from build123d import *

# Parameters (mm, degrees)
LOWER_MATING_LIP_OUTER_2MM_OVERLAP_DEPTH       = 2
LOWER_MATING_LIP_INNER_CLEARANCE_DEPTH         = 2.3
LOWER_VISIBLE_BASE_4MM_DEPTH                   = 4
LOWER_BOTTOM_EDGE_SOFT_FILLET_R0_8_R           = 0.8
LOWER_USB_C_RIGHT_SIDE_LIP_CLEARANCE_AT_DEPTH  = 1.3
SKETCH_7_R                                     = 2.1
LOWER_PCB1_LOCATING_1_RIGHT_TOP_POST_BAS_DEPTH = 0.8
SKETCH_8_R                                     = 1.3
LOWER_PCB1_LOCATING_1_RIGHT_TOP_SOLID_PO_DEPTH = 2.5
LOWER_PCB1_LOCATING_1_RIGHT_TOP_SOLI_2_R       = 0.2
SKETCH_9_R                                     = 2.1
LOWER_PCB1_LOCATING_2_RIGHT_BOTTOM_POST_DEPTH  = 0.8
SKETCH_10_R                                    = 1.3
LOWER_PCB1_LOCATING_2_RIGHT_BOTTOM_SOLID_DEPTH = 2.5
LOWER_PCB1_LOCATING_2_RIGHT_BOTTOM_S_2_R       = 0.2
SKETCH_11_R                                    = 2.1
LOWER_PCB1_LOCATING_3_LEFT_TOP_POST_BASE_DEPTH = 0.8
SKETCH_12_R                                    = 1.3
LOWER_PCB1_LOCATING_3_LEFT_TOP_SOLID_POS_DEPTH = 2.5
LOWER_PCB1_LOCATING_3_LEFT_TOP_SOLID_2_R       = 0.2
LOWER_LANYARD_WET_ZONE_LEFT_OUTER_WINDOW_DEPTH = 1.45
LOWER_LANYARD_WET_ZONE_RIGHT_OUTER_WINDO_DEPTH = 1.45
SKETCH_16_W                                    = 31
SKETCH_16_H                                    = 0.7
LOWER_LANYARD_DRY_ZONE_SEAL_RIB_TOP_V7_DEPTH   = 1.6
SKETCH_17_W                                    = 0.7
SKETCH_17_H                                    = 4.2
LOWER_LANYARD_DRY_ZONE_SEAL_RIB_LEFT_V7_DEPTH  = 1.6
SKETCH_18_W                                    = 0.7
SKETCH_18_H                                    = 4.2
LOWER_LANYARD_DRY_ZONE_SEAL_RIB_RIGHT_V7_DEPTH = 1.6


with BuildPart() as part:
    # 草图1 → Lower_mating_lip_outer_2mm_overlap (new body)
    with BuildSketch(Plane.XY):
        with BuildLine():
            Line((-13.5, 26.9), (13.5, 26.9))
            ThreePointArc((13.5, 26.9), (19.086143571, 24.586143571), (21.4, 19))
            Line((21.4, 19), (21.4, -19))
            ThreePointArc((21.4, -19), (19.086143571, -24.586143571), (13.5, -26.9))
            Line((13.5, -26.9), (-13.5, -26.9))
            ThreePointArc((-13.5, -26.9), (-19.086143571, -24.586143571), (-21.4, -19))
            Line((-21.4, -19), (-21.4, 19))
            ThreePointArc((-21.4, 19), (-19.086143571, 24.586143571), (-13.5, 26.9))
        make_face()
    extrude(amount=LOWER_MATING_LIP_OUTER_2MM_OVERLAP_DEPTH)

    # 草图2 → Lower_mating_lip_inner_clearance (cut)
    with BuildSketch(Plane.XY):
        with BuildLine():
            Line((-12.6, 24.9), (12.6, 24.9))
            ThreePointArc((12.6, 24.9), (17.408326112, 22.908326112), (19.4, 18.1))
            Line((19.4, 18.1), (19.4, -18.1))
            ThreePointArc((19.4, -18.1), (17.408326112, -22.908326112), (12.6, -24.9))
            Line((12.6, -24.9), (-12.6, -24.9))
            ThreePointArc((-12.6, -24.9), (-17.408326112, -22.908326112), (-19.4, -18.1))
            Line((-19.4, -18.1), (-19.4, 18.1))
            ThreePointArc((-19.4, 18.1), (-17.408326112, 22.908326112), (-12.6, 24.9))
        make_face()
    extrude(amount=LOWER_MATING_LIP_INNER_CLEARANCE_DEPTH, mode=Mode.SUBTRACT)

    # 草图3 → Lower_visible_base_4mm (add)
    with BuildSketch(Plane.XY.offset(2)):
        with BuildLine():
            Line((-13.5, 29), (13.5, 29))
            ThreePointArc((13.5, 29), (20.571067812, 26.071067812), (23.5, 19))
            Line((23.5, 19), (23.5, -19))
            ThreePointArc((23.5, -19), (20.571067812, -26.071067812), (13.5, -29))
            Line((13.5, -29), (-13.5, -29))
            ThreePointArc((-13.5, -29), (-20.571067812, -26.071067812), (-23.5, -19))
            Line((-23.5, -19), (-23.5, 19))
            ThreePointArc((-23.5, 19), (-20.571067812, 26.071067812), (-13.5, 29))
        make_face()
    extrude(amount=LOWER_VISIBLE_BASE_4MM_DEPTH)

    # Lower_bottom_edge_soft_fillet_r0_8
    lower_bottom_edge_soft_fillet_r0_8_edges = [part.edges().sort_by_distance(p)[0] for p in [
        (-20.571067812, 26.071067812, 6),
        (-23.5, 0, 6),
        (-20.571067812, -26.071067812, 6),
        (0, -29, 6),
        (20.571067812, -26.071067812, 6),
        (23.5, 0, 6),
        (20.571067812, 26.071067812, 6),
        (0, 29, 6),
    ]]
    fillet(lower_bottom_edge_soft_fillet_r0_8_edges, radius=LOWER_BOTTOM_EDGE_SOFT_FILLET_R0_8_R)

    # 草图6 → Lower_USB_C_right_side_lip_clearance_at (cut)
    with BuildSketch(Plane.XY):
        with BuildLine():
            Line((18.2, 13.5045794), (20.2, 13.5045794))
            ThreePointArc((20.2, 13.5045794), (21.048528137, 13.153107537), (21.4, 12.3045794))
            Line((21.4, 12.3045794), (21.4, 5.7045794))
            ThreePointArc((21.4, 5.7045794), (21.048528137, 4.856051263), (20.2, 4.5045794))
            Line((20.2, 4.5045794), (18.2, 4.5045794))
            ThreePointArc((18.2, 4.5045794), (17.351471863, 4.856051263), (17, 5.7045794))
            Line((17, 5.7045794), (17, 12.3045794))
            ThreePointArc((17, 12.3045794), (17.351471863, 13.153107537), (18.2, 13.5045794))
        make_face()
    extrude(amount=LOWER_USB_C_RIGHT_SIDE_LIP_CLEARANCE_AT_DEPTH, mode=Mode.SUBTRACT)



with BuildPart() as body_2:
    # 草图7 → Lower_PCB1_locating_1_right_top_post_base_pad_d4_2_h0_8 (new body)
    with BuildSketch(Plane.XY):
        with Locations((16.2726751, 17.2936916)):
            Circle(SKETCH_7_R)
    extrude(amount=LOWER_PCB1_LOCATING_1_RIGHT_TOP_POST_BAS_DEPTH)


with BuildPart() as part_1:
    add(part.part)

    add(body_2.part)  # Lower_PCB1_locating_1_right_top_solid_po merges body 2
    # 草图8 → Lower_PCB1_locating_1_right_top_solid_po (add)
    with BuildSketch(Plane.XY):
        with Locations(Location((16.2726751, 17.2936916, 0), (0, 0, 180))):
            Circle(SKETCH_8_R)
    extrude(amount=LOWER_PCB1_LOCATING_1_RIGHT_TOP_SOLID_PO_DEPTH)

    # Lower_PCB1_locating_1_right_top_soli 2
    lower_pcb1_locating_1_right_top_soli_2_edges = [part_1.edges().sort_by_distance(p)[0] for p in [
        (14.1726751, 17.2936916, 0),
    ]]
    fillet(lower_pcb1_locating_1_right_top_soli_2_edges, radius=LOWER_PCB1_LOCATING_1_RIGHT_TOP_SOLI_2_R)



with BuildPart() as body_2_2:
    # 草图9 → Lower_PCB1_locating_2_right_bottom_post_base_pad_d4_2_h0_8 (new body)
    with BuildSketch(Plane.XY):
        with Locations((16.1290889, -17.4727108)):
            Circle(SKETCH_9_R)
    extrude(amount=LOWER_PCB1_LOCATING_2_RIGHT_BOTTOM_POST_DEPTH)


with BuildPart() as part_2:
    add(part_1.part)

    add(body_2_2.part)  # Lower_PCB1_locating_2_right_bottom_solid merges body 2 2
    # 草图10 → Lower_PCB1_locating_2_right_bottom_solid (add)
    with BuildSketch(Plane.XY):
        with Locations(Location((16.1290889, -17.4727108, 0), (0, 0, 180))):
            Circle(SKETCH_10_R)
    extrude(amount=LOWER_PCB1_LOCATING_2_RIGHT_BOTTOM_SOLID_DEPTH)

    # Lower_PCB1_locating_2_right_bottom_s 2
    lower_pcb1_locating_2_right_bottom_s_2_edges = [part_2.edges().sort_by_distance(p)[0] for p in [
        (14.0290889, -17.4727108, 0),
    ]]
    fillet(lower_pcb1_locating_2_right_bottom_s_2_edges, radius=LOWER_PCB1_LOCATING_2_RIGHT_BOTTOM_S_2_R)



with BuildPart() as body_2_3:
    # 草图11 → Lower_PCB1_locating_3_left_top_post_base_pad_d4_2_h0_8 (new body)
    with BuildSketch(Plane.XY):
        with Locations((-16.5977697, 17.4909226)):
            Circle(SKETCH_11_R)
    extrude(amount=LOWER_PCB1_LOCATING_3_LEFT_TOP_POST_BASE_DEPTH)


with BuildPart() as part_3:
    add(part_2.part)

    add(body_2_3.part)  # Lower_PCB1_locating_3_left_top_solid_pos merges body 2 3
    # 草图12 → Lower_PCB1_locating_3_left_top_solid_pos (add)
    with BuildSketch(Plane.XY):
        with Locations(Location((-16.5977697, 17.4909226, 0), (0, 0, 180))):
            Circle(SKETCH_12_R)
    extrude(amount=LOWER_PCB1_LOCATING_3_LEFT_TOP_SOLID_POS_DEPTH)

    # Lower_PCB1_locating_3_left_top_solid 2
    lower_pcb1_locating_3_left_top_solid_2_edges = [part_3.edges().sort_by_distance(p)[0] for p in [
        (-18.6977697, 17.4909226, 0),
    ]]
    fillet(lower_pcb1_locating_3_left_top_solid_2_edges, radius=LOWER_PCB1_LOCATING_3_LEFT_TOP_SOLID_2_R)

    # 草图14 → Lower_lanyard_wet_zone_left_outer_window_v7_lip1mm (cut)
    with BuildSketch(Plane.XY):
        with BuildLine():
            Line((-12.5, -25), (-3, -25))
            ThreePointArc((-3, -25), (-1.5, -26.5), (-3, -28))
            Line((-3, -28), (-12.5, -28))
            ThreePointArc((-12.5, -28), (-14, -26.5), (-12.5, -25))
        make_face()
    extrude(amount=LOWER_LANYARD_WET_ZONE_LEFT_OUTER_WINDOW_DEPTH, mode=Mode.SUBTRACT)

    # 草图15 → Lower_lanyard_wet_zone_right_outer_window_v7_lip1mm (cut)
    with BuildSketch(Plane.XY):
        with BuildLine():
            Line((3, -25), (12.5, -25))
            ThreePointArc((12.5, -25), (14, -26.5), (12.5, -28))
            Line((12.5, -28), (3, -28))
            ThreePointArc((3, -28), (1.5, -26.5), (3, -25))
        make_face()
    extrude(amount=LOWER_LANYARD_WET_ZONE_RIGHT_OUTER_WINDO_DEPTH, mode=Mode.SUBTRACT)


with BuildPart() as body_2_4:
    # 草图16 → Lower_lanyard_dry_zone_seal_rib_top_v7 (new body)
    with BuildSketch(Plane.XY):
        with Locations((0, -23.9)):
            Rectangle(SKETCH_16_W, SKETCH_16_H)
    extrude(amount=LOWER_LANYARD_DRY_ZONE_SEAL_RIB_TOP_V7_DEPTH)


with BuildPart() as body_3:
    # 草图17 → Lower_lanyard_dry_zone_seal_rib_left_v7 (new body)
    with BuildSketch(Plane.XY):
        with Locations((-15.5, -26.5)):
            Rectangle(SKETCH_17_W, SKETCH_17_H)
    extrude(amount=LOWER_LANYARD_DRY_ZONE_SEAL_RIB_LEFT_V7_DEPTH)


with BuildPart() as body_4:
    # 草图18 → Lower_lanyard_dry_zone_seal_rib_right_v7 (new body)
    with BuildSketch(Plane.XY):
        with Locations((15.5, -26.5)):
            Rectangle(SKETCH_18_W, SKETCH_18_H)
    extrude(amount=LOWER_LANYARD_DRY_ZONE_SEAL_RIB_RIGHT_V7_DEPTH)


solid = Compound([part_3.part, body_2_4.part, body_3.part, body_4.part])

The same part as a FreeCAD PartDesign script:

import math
import FreeCAD as App
import Part
import Sketcher
from FreeCAD import Vector
Q = App.Units.Quantity


def edges_at(feature, points):
    """Names of the edges that pass closest to the given points."""
    edges = feature.Shape.Edges
    near = lambda p: min(range(len(edges)), key=lambda i: edges[i].distToShape(Part.Vertex(*p))[0])
    return sorted({f"Edge{near(p) + 1}" for p in points})

doc = App.newDocument("Part")
body = doc.addObject("PartDesign::Body", "Body")

sketch1 = doc.addObject("Sketcher::SketchObject", "Sketch")
body.addObject(sketch1)
sketch1.AttachmentSupport = (doc.XY_Plane, [""])
sketch1.MapMode = "FlatFace"
sketch1.addGeometry([
    Part.LineSegment(Vector(13.5, 26.9, 0), Vector(-13.5, 26.9, 0)),
    Part.ArcOfCircle(Part.Circle(Vector(-13.5, 19, 0), Vector(0, 0, 1), 7.9), math.radians(90), math.radians(180)),
    Part.LineSegment(Vector(-21.4, 19, 0), Vector(-21.4, -19, 0)),
    Part.ArcOfCircle(Part.Circle(Vector(-13.5, -19, 0), Vector(0, 0, 1), 7.9), math.radians(-180), math.radians(-90)),
    Part.LineSegment(Vector(-13.5, -26.9, 0), Vector(13.5, -26.9, 0)),
    Part.ArcOfCircle(Part.Circle(Vector(13.5, -19, 0), Vector(0, 0, 1), 7.9), math.radians(-90), math.radians(0)),
    Part.LineSegment(Vector(21.4, -19, 0), Vector(21.4, 19, 0)),
    Part.ArcOfCircle(Part.Circle(Vector(13.5, 19, 0), Vector(0, 0, 1), 7.9), math.radians(0), math.radians(90)),
], False)
sketch1.addConstraint([
    Sketcher.Constraint("Tangent", 0, 2, 1, 1),
    Sketcher.Constraint("Tangent", 1, 2, 2, 1),
    Sketcher.Constraint("Tangent", 2, 2, 3, 1),
    Sketcher.Constraint("Tangent", 3, 2, 4, 1),
    Sketcher.Constraint("Tangent", 4, 2, 5, 1),
    Sketcher.Constraint("Tangent", 5, 2, 6, 1),
    Sketcher.Constraint("Tangent", 6, 2, 7, 1),
    Sketcher.Constraint("Tangent", 7, 2, 0, 1),
    Sketcher.Constraint("Horizontal", 0),
    Sketcher.Constraint("Vertical", 2),
    Sketcher.Constraint("Horizontal", 4),
    Sketcher.Constraint("Vertical", 6),
    Sketcher.Constraint("Equal", 1, 3),
    Sketcher.Constraint("Equal", 3, 5),
    Sketcher.Constraint("Equal", 5, 7),
    Sketcher.Constraint("Symmetric", 1, 3, 5, 3, -1, 1),
    Sketcher.Constraint("Radius", 1, Q("7.9 mm")),
    Sketcher.Constraint("DistanceX", 0, 2, 0, 1, Q("27 mm")),
    Sketcher.Constraint("DistanceY", 2, 2, 2, 1, Q("38 mm")),
])
pad1 = doc.addObject("PartDesign::Pad", "Pad")
body.addObject(pad1)
pad1.Profile = sketch1
pad1.Length = 2

sketch2 = doc.addObject("Sketcher::SketchObject", "Sketch001")
body.addObject(sketch2)
sketch2.AttachmentSupport = (doc.XY_Plane, [""])
sketch2.MapMode = "FlatFace"
sketch2.addGeometry([
    Part.LineSegment(Vector(12.6, 24.9, 0), Vector(-12.6, 24.9, 0)),
    Part.ArcOfCircle(Part.Circle(Vector(-12.6, 18.1, 0), Vector(0, 0, 1), 6.8), math.radians(90), math.radians(180)),
    Part.LineSegment(Vector(-19.4, 18.1, 0), Vector(-19.4, -18.1, 0)),
    Part.ArcOfCircle(Part.Circle(Vector(-12.6, -18.1, 0), Vector(0, 0, 1), 6.8), math.radians(180), math.radians(270)),
    Part.LineSegment(Vector(-12.6, -24.9, 0), Vector(12.6, -24.9, 0)),
    Part.ArcOfCircle(Part.Circle(Vector(12.6, -18.1, 0), Vector(0, 0, 1), 6.8), math.radians(-90), math.radians(0)),
    Part.LineSegment(Vector(19.4, -18.1, 0), Vector(19.4, 18.1, 0)),
    Part.ArcOfCircle(Part.Circle(Vector(12.6, 18.1, 0), Vector(0, 0, 1), 6.8), math.radians(0), math.radians(90)),
], False)
sketch2.addConstraint([
    Sketcher.Constraint("Tangent", 0, 2, 1, 1),
    Sketcher.Constraint("Tangent", 1, 2, 2, 1),
    Sketcher.Constraint("Tangent", 2, 2, 3, 1),
    Sketcher.Constraint("Tangent", 3, 2, 4, 1),
    Sketcher.Constraint("Tangent", 4, 2, 5, 1),
    Sketcher.Constraint("Tangent", 5, 2, 6, 1),
    Sketcher.Constraint("Tangent", 6, 2, 7, 1),
    Sketcher.Constraint("Tangent", 7, 2, 0, 1),
    Sketcher.Constraint("Horizontal", 0),
    Sketcher.Constraint("Vertical", 2),
    Sketcher.Constraint("Horizontal", 4),
    Sketcher.Constraint("Vertical", 6),
    Sketcher.Constraint("Equal", 1, 3),
    Sketcher.Constraint("Equal", 3, 5),
    Sketcher.Constraint("Equal", 5, 7),
    Sketcher.Constraint("Symmetric", 1, 3, 5, 3, -1, 1),
    Sketcher.Constraint("Radius", 1, Q("6.8 mm")),
    Sketcher.Constraint("DistanceX", 0, 2, 0, 1, Q("25.2 mm")),
    Sketcher.Constraint("DistanceY", 2, 2, 2, 1, Q("36.2 mm")),
])
pocket1 = doc.addObject("PartDesign::Pocket", "Pocket")
body.addObject(pocket1)
pocket1.Profile = sketch2
pocket1.Length = 2.3
pocket1.Reversed = True

sketch3 = doc.addObject("Sketcher::SketchObject", "Sketch002")
body.addObject(sketch3)
sketch3.AttachmentSupport = (doc.XY_Plane, [""])
sketch3.MapMode = "FlatFace"
sketch3.AttachmentOffset = App.Placement(Vector(0, 0, 2), App.Rotation())
sketch3.addGeometry([
    Part.LineSegment(Vector(13.5, 29, 0), Vector(-13.5, 29, 0)),
    Part.ArcOfCircle(Part.Circle(Vector(-13.5, 19, 0), Vector(0, 0, 1), 10), math.radians(90), math.radians(180)),
    Part.LineSegment(Vector(-23.5, 19, 0), Vector(-23.5, -19, 0)),
    Part.ArcOfCircle(Part.Circle(Vector(-13.5, -19, 0), Vector(0, 0, 1), 10), math.radians(180), math.radians(270)),
    Part.LineSegment(Vector(-13.5, -29, 0), Vector(13.5, -29, 0)),
    Part.ArcOfCircle(Part.Circle(Vector(13.5, -19, 0), Vector(0, 0, 1), 10), math.radians(-90), math.radians(0)),
    Part.LineSegment(Vector(23.5, -19, 0), Vector(23.5, 19, 0)),
    Part.ArcOfCircle(Part.Circle(Vector(13.5, 19, 0), Vector(0, 0, 1), 10), math.radians(0), math.radians(90)),
], False)
sketch3.addConstraint([
    Sketcher.Constraint("Tangent", 0, 2, 1, 1),
    Sketcher.Constraint("Tangent", 1, 2, 2, 1),
    Sketcher.Constraint("Tangent", 2, 2, 3, 1),
    Sketcher.Constraint("Tangent", 3, 2, 4, 1),
    Sketcher.Constraint("Tangent", 4, 2, 5, 1),
    Sketcher.Constraint("Tangent", 5, 2, 6, 1),
    Sketcher.Constraint("Tangent", 6, 2, 7, 1),
    Sketcher.Constraint("Tangent", 7, 2, 0, 1),
    Sketcher.Constraint("Horizontal", 0),
    Sketcher.Constraint("Vertical", 2),
    Sketcher.Constraint("Horizontal", 4),
    Sketcher.Constraint("Vertical", 6),
    Sketcher.Constraint("Equal", 1, 3),
    Sketcher.Constraint("Equal", 3, 5),
    Sketcher.Constraint("Equal", 5, 7),
    Sketcher.Constraint("Symmetric", 1, 3, 5, 3, -1, 1),
    Sketcher.Constraint("Radius", 1, Q("10 mm")),
    Sketcher.Constraint("DistanceX", 0, 2, 0, 1, Q("27 mm")),
    Sketcher.Constraint("DistanceY", 2, 2, 2, 1, Q("38 mm")),
])
pad2 = doc.addObject("PartDesign::Pad", "Pad001")
body.addObject(pad2)
pad2.Profile = sketch3
pad2.Length = 4
doc.recompute()

fillet = doc.addObject("PartDesign::Fillet", "Fillet")
body.addObject(fillet)
fillet.Base = (pad2, edges_at(pad2, [
    (-20.571, 26.071, 6),
    (-23.5, 0, 6),
    (-20.571, -26.071, 6),
    (0, -29, 6),
    (20.571, -26.071, 6),
    (23.5, 0, 6),
    (20.571, 26.071, 6),
    (0, 29, 6),
]))
fillet.Radius = 0.8

sketch4 = doc.addObject("Sketcher::SketchObject", "Sketch003")
body.addObject(sketch4)
sketch4.AttachmentSupport = (doc.XY_Plane, [""])
sketch4.MapMode = "FlatFace"
sketch4.addGeometry([
    Part.LineSegment(Vector(20.2, 13.504579, 0), Vector(18.2, 13.504579, 0)),
    Part.ArcOfCircle(Part.Circle(Vector(18.2, 12.304579, 0), Vector(0, 0, 1), 1.2), math.radians(90), math.radians(180)),
    Part.LineSegment(Vector(17, 12.304579, 0), Vector(17, 5.704579, 0)),
    Part.ArcOfCircle(Part.Circle(Vector(18.2, 5.704579, 0), Vector(0, 0, 1), 1.2), math.radians(-180), math.radians(-90)),
    Part.LineSegment(Vector(18.2, 4.504579, 0), Vector(20.2, 4.504579, 0)),
    Part.ArcOfCircle(Part.Circle(Vector(20.2, 5.704579, 0), Vector(0, 0, 1), 1.2), math.radians(-90), math.radians(0)),
    Part.LineSegment(Vector(21.4, 5.704579, 0), Vector(21.4, 12.304579, 0)),
    Part.ArcOfCircle(Part.Circle(Vector(20.2, 12.304579, 0), Vector(0, 0, 1), 1.2), math.radians(0), math.radians(90)),
], False)
sketch4.addConstraint([
    Sketcher.Constraint("Tangent", 0, 2, 1, 1),
    Sketcher.Constraint("Tangent", 1, 2, 2, 1),
    Sketcher.Constraint("Tangent", 2, 2, 3, 1),
    Sketcher.Constraint("Tangent", 3, 2, 4, 1),
    Sketcher.Constraint("Tangent", 4, 2, 5, 1),
    Sketcher.Constraint("Tangent", 5, 2, 6, 1),
    Sketcher.Constraint("Tangent", 6, 2, 7, 1),
    Sketcher.Constraint("Tangent", 7, 2, 0, 1),
    Sketcher.Constraint("Horizontal", 0),
    Sketcher.Constraint("Vertical", 2),
    Sketcher.Constraint("Horizontal", 4),
    Sketcher.Constraint("Vertical", 6),
    Sketcher.Constraint("Equal", 1, 3),
    Sketcher.Constraint("Equal", 3, 5),
    Sketcher.Constraint("Equal", 5, 7),
    Sketcher.Constraint("Radius", 1, Q("1.2 mm")),
    Sketcher.Constraint("DistanceX", 0, 2, 0, 1, Q("2 mm")),
    Sketcher.Constraint("DistanceY", 2, 2, 2, 1, Q("6.6 mm")),
    Sketcher.Constraint("DistanceX", -1, 1, 1, 2, Q("17 mm")),
    Sketcher.Constraint("DistanceY", -1, 1, 1, 3, Q("12.304579 mm")),
])
pocket2 = doc.addObject("PartDesign::Pocket", "Pocket001")
body.addObject(pocket2)
pocket2.Profile = sketch4
pocket2.Length = 1.3
pocket2.Reversed = True
body2 = doc.addObject("PartDesign::Body", "Body001")

sketch5 = doc.addObject("Sketcher::SketchObject", "Sketch004")
body2.addObject(sketch5)
sketch5.AttachmentSupport = (doc.getObject("XY_Plane001"), [""])
sketch5.MapMode = "FlatFace"
sketch5.addGeometry(Part.Circle(Vector(16.272675, 17.293692, 0), Vector(0, 0, 1), 2.1), False)
sketch5.addConstraint([
    Sketcher.Constraint("Diameter", 0, Q("4.2 mm")),
    Sketcher.Constraint("DistanceY", -1, 1, 0, 3, Q("17.293692 mm")),
    Sketcher.Constraint("DistanceX", -1, 1, 0, 3, Q("16.272675 mm")),
])
pad3 = doc.addObject("PartDesign::Pad", "Pad002")
body2.addObject(pad3)
pad3.Profile = sketch5
pad3.Length = 0.8
body.AllowCompound = True
doc.recompute()

boolean = doc.addObject("PartDesign::Boolean", "Boolean")
body.addObject(boolean)
boolean.Type = "Fuse"
boolean.addObjects([body2])

sketch6 = doc.addObject("Sketcher::SketchObject", "Sketch005")
body.addObject(sketch6)
sketch6.AttachmentSupport = (doc.XY_Plane, [""])
sketch6.MapMode = "FlatFace"
sketch6.addGeometry(Part.Circle(Vector(16.272675, 17.293692, 0), Vector(0, 0, 1), 1.3), False)
sketch6.addConstraint([
    Sketcher.Constraint("Diameter", 0, Q("2.6 mm")),
    Sketcher.Constraint("DistanceY", -1, 1, 0, 3, Q("17.293692 mm")),
    Sketcher.Constraint("DistanceX", -1, 1, 0, 3, Q("16.272675 mm")),
])
pad4 = doc.addObject("PartDesign::Pad", "Pad003")
body.addObject(pad4)
pad4.Profile = sketch6
pad4.Length = 2.5
doc.recompute()

fillet2 = doc.addObject("PartDesign::Fillet", "Fillet001")
body.addObject(fillet2)
fillet2.Base = (pad4, edges_at(pad4, [(14.173, 17.294, 0)]))
fillet2.Radius = 0.2
body3 = doc.addObject("PartDesign::Body", "Body002")

sketch7 = doc.addObject("Sketcher::SketchObject", "Sketch006")
body3.addObject(sketch7)
sketch7.AttachmentSupport = (doc.getObject("XY_Plane002"), [""])
sketch7.MapMode = "FlatFace"
sketch7.addGeometry(Part.Circle(Vector(16.129089, -17.472711, 0), Vector(0, 0, 1), 2.1), False)
sketch7.addConstraint([
    Sketcher.Constraint("Diameter", 0, Q("4.2 mm")),
    Sketcher.Constraint("DistanceX", -1, 1, 0, 3, Q("16.129089 mm")),
    Sketcher.Constraint("DistanceY", 0, 3, -1, 1, Q("17.472711 mm")),
])
pad5 = doc.addObject("PartDesign::Pad", "Pad004")
body3.addObject(pad5)
pad5.Profile = sketch7
pad5.Length = 0.8
body.AllowCompound = True
doc.recompute()

boolean2 = doc.addObject("PartDesign::Boolean", "Boolean001")
body.addObject(boolean2)
boolean2.Type = "Fuse"
boolean2.addObjects([body3])

sketch8 = doc.addObject("Sketcher::SketchObject", "Sketch007")
body.addObject(sketch8)
sketch8.AttachmentSupport = (doc.XY_Plane, [""])
sketch8.MapMode = "FlatFace"
sketch8.addGeometry(Part.Circle(Vector(16.129089, -17.472711, 0), Vector(0, 0, 1), 1.3), False)
sketch8.addConstraint([
    Sketcher.Constraint("Diameter", 0, Q("2.6 mm")),
    Sketcher.Constraint("DistanceX", -1, 1, 0, 3, Q("16.129089 mm")),
    Sketcher.Constraint("DistanceY", 0, 3, -1, 1, Q("17.472711 mm")),
])
pad6 = doc.addObject("PartDesign::Pad", "Pad005")
body.addObject(pad6)
pad6.Profile = sketch8
pad6.Length = 2.5
doc.recompute()

fillet3 = doc.addObject("PartDesign::Fillet", "Fillet002")
body.addObject(fillet3)
fillet3.Base = (pad6, edges_at(pad6, [(14.029, -17.473, 0)]))
fillet3.Radius = 0.2
body4 = doc.addObject("PartDesign::Body", "Body003")

sketch9 = doc.addObject("Sketcher::SketchObject", "Sketch008")
body4.addObject(sketch9)
sketch9.AttachmentSupport = (doc.getObject("XY_Plane003"), [""])
sketch9.MapMode = "FlatFace"
sketch9.addGeometry(Part.Circle(Vector(-16.59777, 17.490923, 0), Vector(0, 0, 1), 2.1), False)
sketch9.addConstraint([
    Sketcher.Constraint("Diameter", 0, Q("4.2 mm")),
    Sketcher.Constraint("DistanceX", 0, 3, -1, 1, Q("16.59777 mm")),
    Sketcher.Constraint("DistanceY", -1, 1, 0, 3, Q("17.490923 mm")),
])
pad7 = doc.addObject("PartDesign::Pad", "Pad006")
body4.addObject(pad7)
pad7.Profile = sketch9
pad7.Length = 0.8
body.AllowCompound = True
doc.recompute()

boolean3 = doc.addObject("PartDesign::Boolean", "Boolean002")
body.addObject(boolean3)
boolean3.Type = "Fuse"
boolean3.addObjects([body4])

sketch10 = doc.addObject("Sketcher::SketchObject", "Sketch009")
body.addObject(sketch10)
sketch10.AttachmentSupport = (doc.XY_Plane, [""])
sketch10.MapMode = "FlatFace"
sketch10.addGeometry(Part.Circle(Vector(-16.59777, 17.490923, 0), Vector(0, 0, 1), 1.3), False)
sketch10.addConstraint([
    Sketcher.Constraint("Diameter", 0, Q("2.6 mm")),
    Sketcher.Constraint("DistanceX", 0, 3, -1, 1, Q("16.59777 mm")),
    Sketcher.Constraint("DistanceY", -1, 1, 0, 3, Q("17.490923 mm")),
])
pad8 = doc.addObject("PartDesign::Pad", "Pad007")
body.addObject(pad8)
pad8.Profile = sketch10
pad8.Length = 2.5
doc.recompute()

fillet4 = doc.addObject("PartDesign::Fillet", "Fillet003")
body.addObject(fillet4)
fillet4.Base = (pad8, edges_at(pad8, [(-18.698, 17.491, 0)]))
fillet4.Radius = 0.2

sketch11 = doc.addObject("Sketcher::SketchObject", "Sketch010")
body.addObject(sketch11)
sketch11.AttachmentSupport = (doc.XY_Plane, [""])
sketch11.MapMode = "FlatFace"
sketch11.addGeometry([
    Part.LineSegment(Vector(-3, -25, 0), Vector(-12.5, -25, 0)),
    Part.ArcOfCircle(Part.Circle(Vector(-12.5, -26.5, 0), Vector(0, 0, 1), 1.5), math.radians(90), math.radians(270)),
    Part.LineSegment(Vector(-12.5, -28, 0), Vector(-3, -28, 0)),
    Part.ArcOfCircle(Part.Circle(Vector(-3, -26.5, 0), Vector(0, 0, 1), 1.5), math.radians(-90), math.radians(90)),
], False)
sketch11.addConstraint([
    Sketcher.Constraint("Tangent", 0, 2, 1, 1),
    Sketcher.Constraint("Tangent", 1, 2, 2, 1),
    Sketcher.Constraint("Tangent", 2, 2, 3, 1),
    Sketcher.Constraint("Tangent", 3, 2, 0, 1),
    Sketcher.Constraint("Horizontal", 0),
    Sketcher.Constraint("Horizontal", 2),
    Sketcher.Constraint("Radius", 1, Q("1.5 mm")),
    Sketcher.Constraint("DistanceX", 0, 2, 0, 1, Q("9.5 mm")),
    Sketcher.Constraint("DistanceX", 3, 3, -1, 1, Q("3 mm")),
    Sketcher.Constraint("DistanceY", 0, 2, -1, 1, Q("25 mm")),
])
pocket3 = doc.addObject("PartDesign::Pocket", "Pocket002")
body.addObject(pocket3)
pocket3.Profile = sketch11
pocket3.Length = 1.45
pocket3.Reversed = True

sketch12 = doc.addObject("Sketcher::SketchObject", "Sketch011")
body.addObject(sketch12)
sketch12.AttachmentSupport = (doc.XY_Plane, [""])
sketch12.MapMode = "FlatFace"
sketch12.addGeometry([
    Part.LineSegment(Vector(12.5, -25, 0), Vector(3, -25, 0)),
    Part.ArcOfCircle(Part.Circle(Vector(3, -26.5, 0), Vector(0, 0, 1), 1.5), math.radians(90), math.radians(270)),
    Part.LineSegment(Vector(3, -28, 0), Vector(12.5, -28, 0)),
    Part.ArcOfCircle(Part.Circle(Vector(12.5, -26.5, 0), Vector(0, 0, 1), 1.5), math.radians(-90), math.radians(90)),
], False)
sketch12.addConstraint([
    Sketcher.Constraint("Tangent", 0, 2, 1, 1),
    Sketcher.Constraint("Tangent", 1, 2, 2, 1),
    Sketcher.Constraint("Tangent", 2, 2, 3, 1),
    Sketcher.Constraint("Tangent", 3, 2, 0, 1),
    Sketcher.Constraint("Horizontal", 0),
    Sketcher.Constraint("Horizontal", 2),
    Sketcher.Constraint("Radius", 1, Q("1.5 mm")),
    Sketcher.Constraint("DistanceX", 0, 2, 0, 1, Q("9.5 mm")),
    Sketcher.Constraint("DistanceX", -1, 1, 1, 3, Q("3 mm")),
    Sketcher.Constraint("DistanceY", 0, 2, -1, 1, Q("25 mm")),
])
pocket4 = doc.addObject("PartDesign::Pocket", "Pocket003")
body.addObject(pocket4)
pocket4.Profile = sketch12
pocket4.Length = 1.45
pocket4.Reversed = True
body5 = doc.addObject("PartDesign::Body", "Body004")

sketch13 = doc.addObject("Sketcher::SketchObject", "Sketch012")
body5.addObject(sketch13)
sketch13.AttachmentSupport = (doc.getObject("XY_Plane004"), [""])
sketch13.MapMode = "FlatFace"
sketch13.addGeometry([
    Part.LineSegment(Vector(-15.5, -23.55, 0), Vector(-15.5, -24.25, 0)),
    Part.LineSegment(Vector(-15.5, -24.25, 0), Vector(15.5, -24.25, 0)),
    Part.LineSegment(Vector(15.5, -24.25, 0), Vector(15.5, -23.55, 0)),
    Part.LineSegment(Vector(15.5, -23.55, 0), Vector(-15.5, -23.55, 0)),
], False)
sketch13.addConstraint([
    Sketcher.Constraint("Coincident", 0, 2, 1, 1),
    Sketcher.Constraint("Coincident", 1, 2, 2, 1),
    Sketcher.Constraint("Coincident", 2, 2, 3, 1),
    Sketcher.Constraint("Coincident", 3, 2, 0, 1),
    Sketcher.Constraint("Vertical", 0),
    Sketcher.Constraint("Horizontal", 1),
    Sketcher.Constraint("Vertical", 2),
    Sketcher.Constraint("Horizontal", 3),
    Sketcher.Constraint("DistanceX", 1, 1, 1, 2, Q("31 mm")),
    Sketcher.Constraint("DistanceY", 0, 2, 0, 1, Q("0.7 mm")),
    Sketcher.Constraint("DistanceX", 0, 2, -1, 1, Q("15.5 mm")),
    Sketcher.Constraint("DistanceY", 0, 2, -1, 1, Q("24.25 mm")),
])
pad9 = doc.addObject("PartDesign::Pad", "Pad008")
body5.addObject(pad9)
pad9.Profile = sketch13
pad9.Length = 1.6
body6 = doc.addObject("PartDesign::Body", "Body005")

sketch14 = doc.addObject("Sketcher::SketchObject", "Sketch013")
body6.addObject(sketch14)
sketch14.AttachmentSupport = (doc.getObject("XY_Plane005"), [""])
sketch14.MapMode = "FlatFace"
sketch14.addGeometry([
    Part.LineSegment(Vector(-15.85, -24.4, 0), Vector(-15.85, -28.6, 0)),
    Part.LineSegment(Vector(-15.85, -28.6, 0), Vector(-15.15, -28.6, 0)),
    Part.LineSegment(Vector(-15.15, -28.6, 0), Vector(-15.15, -24.4, 0)),
    Part.LineSegment(Vector(-15.15, -24.4, 0), Vector(-15.85, -24.4, 0)),
], False)
sketch14.addConstraint([
    Sketcher.Constraint("Coincident", 0, 2, 1, 1),
    Sketcher.Constraint("Coincident", 1, 2, 2, 1),
    Sketcher.Constraint("Coincident", 2, 2, 3, 1),
    Sketcher.Constraint("Coincident", 3, 2, 0, 1),
    Sketcher.Constraint("Vertical", 0),
    Sketcher.Constraint("Horizontal", 1),
    Sketcher.Constraint("Vertical", 2),
    Sketcher.Constraint("Horizontal", 3),
    Sketcher.Constraint("DistanceX", 1, 1, 1, 2, Q("0.7 mm")),
    Sketcher.Constraint("DistanceY", 0, 2, 0, 1, Q("4.2 mm")),
    Sketcher.Constraint("DistanceY", 0, 2, -1, 1, Q("28.6 mm")),
    Sketcher.Constraint("DistanceX", 0, 2, -1, 1, Q("15.85 mm")),
])
pad10 = doc.addObject("PartDesign::Pad", "Pad009")
body6.addObject(pad10)
pad10.Profile = sketch14
pad10.Length = 1.6
body7 = doc.addObject("PartDesign::Body", "Body006")

sketch15 = doc.addObject("Sketcher::SketchObject", "Sketch014")
body7.addObject(sketch15)
sketch15.AttachmentSupport = (doc.getObject("XY_Plane006"), [""])
sketch15.MapMode = "FlatFace"
sketch15.addGeometry([
    Part.LineSegment(Vector(15.15, -24.4, 0), Vector(15.15, -28.6, 0)),
    Part.LineSegment(Vector(15.15, -28.6, 0), Vector(15.85, -28.6, 0)),
    Part.LineSegment(Vector(15.85, -28.6, 0), Vector(15.85, -24.4, 0)),
    Part.LineSegment(Vector(15.85, -24.4, 0), Vector(15.15, -24.4, 0)),
], False)
sketch15.addConstraint([
    Sketcher.Constraint("Coincident", 0, 2, 1, 1),
    Sketcher.Constraint("Coincident", 1, 2, 2, 1),
    Sketcher.Constraint("Coincident", 2, 2, 3, 1),
    Sketcher.Constraint("Coincident", 3, 2, 0, 1),
    Sketcher.Constraint("Vertical", 0),
    Sketcher.Constraint("Horizontal", 1),
    Sketcher.Constraint("Vertical", 2),
    Sketcher.Constraint("Horizontal", 3),
    Sketcher.Constraint("DistanceX", 1, 1, 1, 2, Q("0.7 mm")),
    Sketcher.Constraint("DistanceY", 0, 2, 0, 1, Q("4.2 mm")),
    Sketcher.Constraint("DistanceY", 0, 2, -1, 1, Q("28.6 mm")),
    Sketcher.Constraint("DistanceX", -1, 1, 0, 2, Q("15.15 mm")),
])
pad11 = doc.addObject("PartDesign::Pad", "Pad010")
body7.addObject(pad11)
pad11.Profile = sketch15
pad11.Length = 1.6

doc.recompute()
